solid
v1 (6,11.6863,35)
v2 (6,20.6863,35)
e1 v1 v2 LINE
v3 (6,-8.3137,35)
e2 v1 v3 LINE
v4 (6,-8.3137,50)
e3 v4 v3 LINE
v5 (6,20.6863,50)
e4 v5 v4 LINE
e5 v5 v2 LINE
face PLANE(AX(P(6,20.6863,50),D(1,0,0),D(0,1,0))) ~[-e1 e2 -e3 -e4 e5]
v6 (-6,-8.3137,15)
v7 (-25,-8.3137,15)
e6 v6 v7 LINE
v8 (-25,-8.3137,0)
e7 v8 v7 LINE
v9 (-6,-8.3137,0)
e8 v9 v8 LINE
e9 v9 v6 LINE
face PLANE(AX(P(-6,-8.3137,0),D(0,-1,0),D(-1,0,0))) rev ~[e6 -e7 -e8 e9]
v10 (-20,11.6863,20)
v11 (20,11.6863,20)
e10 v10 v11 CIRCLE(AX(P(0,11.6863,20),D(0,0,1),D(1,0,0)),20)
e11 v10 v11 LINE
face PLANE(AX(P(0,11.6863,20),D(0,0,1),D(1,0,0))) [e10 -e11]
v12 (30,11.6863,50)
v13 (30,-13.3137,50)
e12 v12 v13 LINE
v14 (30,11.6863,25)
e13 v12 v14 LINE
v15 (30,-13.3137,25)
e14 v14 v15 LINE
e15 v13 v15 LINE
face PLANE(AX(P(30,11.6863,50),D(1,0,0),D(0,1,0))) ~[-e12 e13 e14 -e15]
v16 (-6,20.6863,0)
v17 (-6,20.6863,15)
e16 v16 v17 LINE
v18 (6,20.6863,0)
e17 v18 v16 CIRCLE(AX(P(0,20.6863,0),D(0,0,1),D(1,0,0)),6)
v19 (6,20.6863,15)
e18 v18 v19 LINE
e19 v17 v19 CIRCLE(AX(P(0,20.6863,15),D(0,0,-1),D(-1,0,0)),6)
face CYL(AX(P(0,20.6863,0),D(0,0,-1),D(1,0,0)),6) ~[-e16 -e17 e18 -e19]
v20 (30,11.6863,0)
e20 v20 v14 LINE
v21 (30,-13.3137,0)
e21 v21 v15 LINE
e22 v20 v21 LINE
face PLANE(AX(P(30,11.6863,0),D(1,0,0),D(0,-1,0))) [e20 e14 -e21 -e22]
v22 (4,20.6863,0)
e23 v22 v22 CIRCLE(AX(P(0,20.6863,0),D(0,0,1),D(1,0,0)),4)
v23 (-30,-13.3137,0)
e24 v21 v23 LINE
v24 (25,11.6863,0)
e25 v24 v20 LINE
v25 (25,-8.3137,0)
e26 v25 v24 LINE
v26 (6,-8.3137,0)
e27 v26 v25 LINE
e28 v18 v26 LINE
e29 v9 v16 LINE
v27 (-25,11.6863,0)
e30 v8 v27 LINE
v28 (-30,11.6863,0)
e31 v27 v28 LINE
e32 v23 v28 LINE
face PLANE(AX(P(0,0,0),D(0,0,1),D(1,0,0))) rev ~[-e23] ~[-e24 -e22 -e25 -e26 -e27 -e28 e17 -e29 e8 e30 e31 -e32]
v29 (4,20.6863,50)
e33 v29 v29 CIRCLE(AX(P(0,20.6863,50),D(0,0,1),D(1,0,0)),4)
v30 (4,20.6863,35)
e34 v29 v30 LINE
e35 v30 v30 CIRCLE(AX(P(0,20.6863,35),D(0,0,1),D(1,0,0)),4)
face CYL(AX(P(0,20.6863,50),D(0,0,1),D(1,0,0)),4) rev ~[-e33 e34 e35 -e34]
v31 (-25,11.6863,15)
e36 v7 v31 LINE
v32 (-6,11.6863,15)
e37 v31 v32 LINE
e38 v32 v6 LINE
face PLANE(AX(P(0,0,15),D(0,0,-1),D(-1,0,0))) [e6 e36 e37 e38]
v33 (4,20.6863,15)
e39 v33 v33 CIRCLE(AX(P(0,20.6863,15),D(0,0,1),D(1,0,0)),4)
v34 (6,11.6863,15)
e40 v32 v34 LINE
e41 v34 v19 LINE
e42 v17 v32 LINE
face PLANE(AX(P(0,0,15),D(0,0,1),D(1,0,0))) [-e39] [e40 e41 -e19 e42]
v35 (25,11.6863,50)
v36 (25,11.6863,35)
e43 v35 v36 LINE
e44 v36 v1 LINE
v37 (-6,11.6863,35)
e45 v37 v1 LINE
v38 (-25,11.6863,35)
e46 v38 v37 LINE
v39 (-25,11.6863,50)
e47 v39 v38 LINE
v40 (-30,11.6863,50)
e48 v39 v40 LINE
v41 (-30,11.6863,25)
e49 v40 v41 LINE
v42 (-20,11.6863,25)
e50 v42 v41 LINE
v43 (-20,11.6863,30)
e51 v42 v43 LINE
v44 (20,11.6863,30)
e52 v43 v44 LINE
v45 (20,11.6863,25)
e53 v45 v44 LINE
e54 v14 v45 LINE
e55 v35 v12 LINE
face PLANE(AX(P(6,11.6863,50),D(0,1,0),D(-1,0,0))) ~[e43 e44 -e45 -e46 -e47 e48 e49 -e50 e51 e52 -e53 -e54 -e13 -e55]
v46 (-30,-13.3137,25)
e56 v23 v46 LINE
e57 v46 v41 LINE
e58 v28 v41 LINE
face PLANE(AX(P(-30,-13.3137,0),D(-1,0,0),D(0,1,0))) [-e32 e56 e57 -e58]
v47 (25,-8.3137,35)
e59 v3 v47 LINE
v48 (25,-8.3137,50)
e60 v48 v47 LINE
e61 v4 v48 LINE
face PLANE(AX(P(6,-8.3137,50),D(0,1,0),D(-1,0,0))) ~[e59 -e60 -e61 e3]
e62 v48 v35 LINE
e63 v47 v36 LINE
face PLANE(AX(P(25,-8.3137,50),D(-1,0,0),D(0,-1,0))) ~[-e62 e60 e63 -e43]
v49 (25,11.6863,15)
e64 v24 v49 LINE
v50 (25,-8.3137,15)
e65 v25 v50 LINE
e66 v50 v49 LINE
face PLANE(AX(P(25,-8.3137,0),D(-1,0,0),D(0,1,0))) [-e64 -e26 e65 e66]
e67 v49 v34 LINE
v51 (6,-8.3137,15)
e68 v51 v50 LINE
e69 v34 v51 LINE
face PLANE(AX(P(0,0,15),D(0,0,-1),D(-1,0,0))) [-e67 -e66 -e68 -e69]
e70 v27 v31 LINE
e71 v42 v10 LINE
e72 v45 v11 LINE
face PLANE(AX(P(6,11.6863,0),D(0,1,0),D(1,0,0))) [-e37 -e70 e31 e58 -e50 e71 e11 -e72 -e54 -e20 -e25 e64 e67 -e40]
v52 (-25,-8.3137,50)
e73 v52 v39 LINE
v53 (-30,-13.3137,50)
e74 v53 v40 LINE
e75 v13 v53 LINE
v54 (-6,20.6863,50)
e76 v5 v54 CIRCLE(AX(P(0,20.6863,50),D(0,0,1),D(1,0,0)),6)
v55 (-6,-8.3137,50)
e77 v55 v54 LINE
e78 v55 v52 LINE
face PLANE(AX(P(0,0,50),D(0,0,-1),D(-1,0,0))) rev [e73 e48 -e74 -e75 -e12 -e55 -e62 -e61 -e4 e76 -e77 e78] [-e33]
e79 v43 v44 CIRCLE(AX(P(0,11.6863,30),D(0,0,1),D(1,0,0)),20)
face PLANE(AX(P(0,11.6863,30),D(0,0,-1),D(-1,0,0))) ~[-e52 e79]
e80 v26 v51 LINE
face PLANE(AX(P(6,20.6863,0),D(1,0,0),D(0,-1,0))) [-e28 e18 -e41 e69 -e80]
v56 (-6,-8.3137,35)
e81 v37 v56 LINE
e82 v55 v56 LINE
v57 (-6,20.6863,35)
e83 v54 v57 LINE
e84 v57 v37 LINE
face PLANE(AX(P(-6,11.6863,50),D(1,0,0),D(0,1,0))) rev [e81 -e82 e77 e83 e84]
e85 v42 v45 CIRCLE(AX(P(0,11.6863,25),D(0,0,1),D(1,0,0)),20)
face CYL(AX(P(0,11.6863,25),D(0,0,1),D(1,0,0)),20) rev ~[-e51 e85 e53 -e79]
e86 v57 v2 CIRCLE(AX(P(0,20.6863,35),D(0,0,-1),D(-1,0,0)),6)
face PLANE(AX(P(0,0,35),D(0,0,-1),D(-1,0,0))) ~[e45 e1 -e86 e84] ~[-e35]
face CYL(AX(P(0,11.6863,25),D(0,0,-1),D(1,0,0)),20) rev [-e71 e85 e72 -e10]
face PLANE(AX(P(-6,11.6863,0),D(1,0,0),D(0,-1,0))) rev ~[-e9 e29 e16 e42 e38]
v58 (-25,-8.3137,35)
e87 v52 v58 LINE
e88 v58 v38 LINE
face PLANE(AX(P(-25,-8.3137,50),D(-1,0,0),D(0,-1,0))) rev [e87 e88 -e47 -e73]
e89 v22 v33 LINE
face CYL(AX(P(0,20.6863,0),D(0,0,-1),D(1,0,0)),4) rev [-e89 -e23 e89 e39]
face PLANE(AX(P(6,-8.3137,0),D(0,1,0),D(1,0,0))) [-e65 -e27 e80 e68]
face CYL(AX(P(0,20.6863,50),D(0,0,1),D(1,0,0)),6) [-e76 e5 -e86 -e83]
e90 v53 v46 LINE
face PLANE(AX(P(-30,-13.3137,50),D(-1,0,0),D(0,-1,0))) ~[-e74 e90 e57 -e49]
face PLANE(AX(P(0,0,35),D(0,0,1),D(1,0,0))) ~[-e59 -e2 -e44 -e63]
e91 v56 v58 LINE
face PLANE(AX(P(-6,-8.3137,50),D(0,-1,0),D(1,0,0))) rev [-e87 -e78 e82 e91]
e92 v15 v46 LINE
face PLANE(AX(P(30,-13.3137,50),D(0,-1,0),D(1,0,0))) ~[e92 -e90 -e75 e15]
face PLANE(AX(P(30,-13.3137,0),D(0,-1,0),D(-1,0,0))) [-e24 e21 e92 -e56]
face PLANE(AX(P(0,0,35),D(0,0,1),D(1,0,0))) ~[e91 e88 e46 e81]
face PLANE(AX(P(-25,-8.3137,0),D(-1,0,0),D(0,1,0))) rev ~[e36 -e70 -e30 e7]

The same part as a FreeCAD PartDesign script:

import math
import FreeCAD as App
import Part
import Sketcher

doc = App.newDocument("Part")
body = doc.addObject("PartDesign::Body", "Body")

# Sketch on XY plane
sketch1 = body.newObject("Sketcher::SketchObject", "Sketch")
sketch1.AttachmentSupport = (doc.getObject("XY_Plane"), [""])
sketch1.MapMode = "FlatFace"
sketch1.addGeometry([
    Part.LineSegment(App.Vector(-30, -13.3137, 0), App.Vector(30, -13.3137, 0)),  # 0
    Part.LineSegment(App.Vector(30, -13.3137, 0), App.Vector(30, 11.6863, 0)),  # 1
    Part.LineSegment(App.Vector(30, 11.6863, 0), App.Vector(6, 11.6863, 0)),  # 2
    Part.LineSegment(App.Vector(6, 11.6863, 0), App.Vector(6, 20.6863, 0)),  # 3
    Part.ArcOfCircle(Part.Circle(App.Vector(0, 20.6863, 0), App.Vector(0, 0, 1), 6), math.radians(0), math.radians(180)),  # 4
    Part.LineSegment(App.Vector(-6, 20.6863, 0), App.Vector(-6, 11.6863, 0)),  # 5
    Part.LineSegment(App.Vector(-6, 11.6863, 0), App.Vector(-30, 11.6863, 0)),  # 6
    Part.LineSegment(App.Vector(-30, 11.6863, 0), App.Vector(-30, -13.3137, 0)),  # 7
    Part.Circle(App.Vector(0, 20.6863, 0), App.Vector(0, 0, 1), 4),  # 8
], False)
sketch1.addConstraint([
    Sketcher.Constraint("Coincident", 0, 2, 1, 1),
    Sketcher.Constraint("Coincident", 1, 2, 2, 1),
    Sketcher.Constraint("Coincident", 2, 2, 3, 1),
    Sketcher.Constraint("Tangent", 3, 2, 4, 1),
    Sketcher.Constraint("Tangent", 4, 2, 5, 1),
    Sketcher.Constraint("Coincident", 5, 2, 6, 1),
    Sketcher.Constraint("Coincident", 6, 2, 7, 1),
    Sketcher.Constraint("Coincident", 7, 2, 0, 1),
    Sketcher.Constraint("Horizontal", 0),
    Sketcher.Constraint("Vertical", 1),
    Sketcher.Constraint("Horizontal", 2),
    Sketcher.Constraint("Vertical", 3),
    Sketcher.Constraint("Vertical", 5),
    Sketcher.Constraint("Horizontal", 6),
    Sketcher.Constraint("Vertical", 7),
    Sketcher.Constraint("Coincident", 8, 3, 4, 3),
    Sketcher.Constraint("Symmetric", 2, 2, 5, 2, -2),
    Sketcher.Constraint("Equal", 2, 6),
    Sketcher.Constraint("Diameter", 8, 8.0),
    Sketcher.Constraint("Radius", 4, 6.0),
    Sketcher.Constraint("DistanceX", 0, 1, 0, 2, 60.0),
    Sketcher.Constraint("DistanceY", 1, 1, 1, 2, 25.0),
    Sketcher.Constraint("DistanceY", 3, 1, 3, 2, 9.0),
    Sketcher.Constraint("DistanceY", -1, 1, 4, 3, 20.6863),
])
pad1 = body.newObject("PartDesign::Pad", "Pad")
pad1.Profile = sketch1
pad1.Length = 25

# Sketch on XY plane
sketch2 = body.newObject("Sketcher::SketchObject", "Sketch001")
sketch2.AttachmentSupport = (doc.getObject("XY_Plane"), [""])
sketch2.MapMode = "FlatFace"
sketch2.addGeometry([
    Part.LineSegment(App.Vector(6, 11.6863, 0), App.Vector(25, 11.6863, 0)),  # 0
    Part.LineSegment(App.Vector(25, 11.6863, 0), App.Vector(25, -8.3137, 0)),  # 1
    Part.LineSegment(App.Vector(25, -8.3137, 0), App.Vector(6, -8.3137, 0)),  # 2
    Part.LineSegment(App.Vector(6, -8.3137, 0), App.Vector(6, 11.6863, 0)),  # 3
    Part.LineSegment(App.Vector(-25, -8.3137, 0), App.Vector(-25, 11.6863, 0)),  # 4
    Part.LineSegment(App.Vector(-25, 11.6863, 0), App.Vector(-6, 11.6863, 0)),  # 5
    Part.LineSegment(App.Vector(-6, 11.6863, 0), App.Vector(-6, -8.3137, 0)),  # 6
    Part.LineSegment(App.Vector(-6, -8.3137, 0), App.Vector(-25, -8.3137, 0)),  # 7
], False)
sketch2.addConstraint([
    Sketcher.Constraint("Coincident", 0, 2, 1, 1),
    Sketcher.Constraint("Coincident", 1, 2, 2, 1),
    Sketcher.Constraint("Coincident", 2, 2, 3, 1),
    Sketcher.Constraint("Coincident", 3, 2, 0, 1),
    Sketcher.Constraint("Coincident", 4, 2, 5, 1),
    Sketcher.Constraint("Coincident", 5, 2, 6, 1),
    Sketcher.Constraint("Coincident", 6, 2, 7, 1),
    Sketcher.Constraint("Coincident", 7, 2, 4, 1),
    Sketcher.Constraint("Horizontal", 0),
    Sketcher.Constraint("Vertical", 1),
    Sketcher.Constraint("Horizontal", 2),
    Sketcher.Constraint("Vertical", 3),
    Sketcher.Constraint("Vertical", 4),
    Sketcher.Constraint("Horizontal", 5),
    Sketcher.Constraint("Vertical", 6),
    Sketcher.Constraint("Horizontal", 7),
    Sketcher.Constraint("Symmetric", 0, 2, 4, 2, -2),
    Sketcher.Constraint("Symmetric", 2, 2, 6, 2, -2),
    Sketcher.Constraint("DistanceX", 0, 1, 0, 2, 19.0),
    Sketcher.Constraint("DistanceY", 1, 2, 1, 1, 20.0),
    Sketcher.Constraint("DistanceX", -1, 1, 0, 2, 25.0),
    Sketcher.Constraint("DistanceY", -1, 1, 0, 2, 11.6863),
])
pocket1 = body.newObject("PartDesign::Pocket", "Pocket")
pocket1.Profile = sketch2
pocket1.Length = 15
pocket1.Reversed = True

# Sketch on XY plane
sketch3 = body.newObject("Sketcher::SketchObject", "Sketch002")
sketch3.AttachmentSupport = (doc.getObject("XY_Plane"), [""])
sketch3.MapMode = "FlatFace"
sketch3.AttachmentOffset = App.Placement(App.Vector(0, 0, 25), App.Rotation())
sketch3.addGeometry([
    Part.LineSegment(App.Vector(-6, 20.6863, 0), App.Vector(-6, 11.6863, 0)),  # 0
    Part.LineSegment(App.Vector(-6, 11.6863, 0), App.Vector(6, 11.6863, 0)),  # 1
    Part.LineSegment(App.Vector(6, 11.6863, 0), App.Vector(6, 20.6863, 0)),  # 2
    Part.ArcOfCircle(Part.Circle(App.Vector(0, 20.6863, 0), App.Vector(0, 0, 1), 6), math.radians(0), math.radians(180)),  # 3
    Part.Circle(App.Vector(0, 20.6863, 0), App.Vector(0, 0, 1), 4),  # 4
], False)
sketch3.addConstraint([
    Sketcher.Constraint("Coincident", 0, 2, 1, 1),
    Sketcher.Constraint("Coincident", 1, 2, 2, 1),
    Sketcher.Constraint("Tangent", 2, 2, 3, 1),
    Sketcher.Constraint("Tangent", 3, 2, 0, 1),
    Sketcher.Constraint("Vertical", 0),
    Sketcher.Constraint("Horizontal", 1),
    Sketcher.Constraint("Vertical", 2),
    Sketcher.Constraint("Coincident", 4, 3, 3, 3),
    Sketcher.Constraint("PointOnObject", 3, 3, -2),
    Sketcher.Constraint("Diameter", 4, 8.0),
    Sketcher.Constraint("Radius", 3, 6.0),
    Sketcher.Constraint("DistanceY", 0, 2, 0, 1, 9.0),
    Sketcher.Constraint("DistanceY", -1, 1, 3, 3, 20.6863),
])
pocket2 = body.newObject("PartDesign::Pocket", "Pocket001")
pocket2.Profile = sketch3
pocket2.Length = 10

# Sketch on XZ plane
sketch4 = body.newObject("Sketcher::SketchObject", "Sketch003")
sketch4.AttachmentSupport = (doc.getObject("XZ_Plane"), [""])
sketch4.MapMode = "FlatFace"
sketch4.AttachmentOffset = App.Placement(App.Vector(0, 0, -11.6863), App.Rotation())
sketch4.addGeometry([
    Part.LineSegment(App.Vector(0, 20, 0), App.Vector(0, 25, 0)),
    Part.LineSegment(App.Vector(0, 25, 0), App.Vector(20, 25, 0)),
    Part.LineSegment(App.Vector(20, 25, 0), App.Vector(20, 20, 0)),
    Part.LineSegment(App.Vector(20, 20, 0), App.Vector(0, 20, 0)),
], False)
sketch4.addConstraint([
    Sketcher.Constraint("Coincident", 0, 2, 1, 1),
    Sketcher.Constraint("Coincident", 1, 2, 2, 1),
    Sketcher.Constraint("Coincident", 2, 2, 3, 1),
    Sketcher.Constraint("Coincident", 3, 2, 0, 1),
    Sketcher.Constraint("Vertical", 0),
    Sketcher.Constraint("Horizontal", 1),
    Sketcher.Constraint("Vertical", 2),
    Sketcher.Constraint("Horizontal", 3),
    Sketcher.Constraint("PointOnObject", 0, 2, -2),
    Sketcher.Constraint("DistanceX", 1, 1, 1, 2, 20.0),
    Sketcher.Constraint("DistanceY", 0, 1, 0, 2, 5.0),
    Sketcher.Constraint("DistanceY", -1, 1, 2, 2, 20.0),
])
groove = body.newObject("PartDesign::Groove", "Groove")
groove.Profile = sketch4
groove.ReferenceAxis = (sketch4, ["V_Axis"])
groove.Angle = 360
doc.recompute()

datumplane = body.newObject("PartDesign::Plane", "DatumPlane")
datumplane.AttachmentSupport = (doc.getObject("XY_Plane"), [""])
datumplane.MapMode = "FlatFace"
datumplane.AttachmentOffset = App.Placement(App.Vector(0, 0, 25), App.Rotation())
mirrored = body.newObject("PartDesign::Mirrored", "Mirrored")
mirrored.TransformMode = "Transform body"
mirrored.MirrorPlane = (datumplane, [""])
body.Tip = mirrored

doc.recompute()
